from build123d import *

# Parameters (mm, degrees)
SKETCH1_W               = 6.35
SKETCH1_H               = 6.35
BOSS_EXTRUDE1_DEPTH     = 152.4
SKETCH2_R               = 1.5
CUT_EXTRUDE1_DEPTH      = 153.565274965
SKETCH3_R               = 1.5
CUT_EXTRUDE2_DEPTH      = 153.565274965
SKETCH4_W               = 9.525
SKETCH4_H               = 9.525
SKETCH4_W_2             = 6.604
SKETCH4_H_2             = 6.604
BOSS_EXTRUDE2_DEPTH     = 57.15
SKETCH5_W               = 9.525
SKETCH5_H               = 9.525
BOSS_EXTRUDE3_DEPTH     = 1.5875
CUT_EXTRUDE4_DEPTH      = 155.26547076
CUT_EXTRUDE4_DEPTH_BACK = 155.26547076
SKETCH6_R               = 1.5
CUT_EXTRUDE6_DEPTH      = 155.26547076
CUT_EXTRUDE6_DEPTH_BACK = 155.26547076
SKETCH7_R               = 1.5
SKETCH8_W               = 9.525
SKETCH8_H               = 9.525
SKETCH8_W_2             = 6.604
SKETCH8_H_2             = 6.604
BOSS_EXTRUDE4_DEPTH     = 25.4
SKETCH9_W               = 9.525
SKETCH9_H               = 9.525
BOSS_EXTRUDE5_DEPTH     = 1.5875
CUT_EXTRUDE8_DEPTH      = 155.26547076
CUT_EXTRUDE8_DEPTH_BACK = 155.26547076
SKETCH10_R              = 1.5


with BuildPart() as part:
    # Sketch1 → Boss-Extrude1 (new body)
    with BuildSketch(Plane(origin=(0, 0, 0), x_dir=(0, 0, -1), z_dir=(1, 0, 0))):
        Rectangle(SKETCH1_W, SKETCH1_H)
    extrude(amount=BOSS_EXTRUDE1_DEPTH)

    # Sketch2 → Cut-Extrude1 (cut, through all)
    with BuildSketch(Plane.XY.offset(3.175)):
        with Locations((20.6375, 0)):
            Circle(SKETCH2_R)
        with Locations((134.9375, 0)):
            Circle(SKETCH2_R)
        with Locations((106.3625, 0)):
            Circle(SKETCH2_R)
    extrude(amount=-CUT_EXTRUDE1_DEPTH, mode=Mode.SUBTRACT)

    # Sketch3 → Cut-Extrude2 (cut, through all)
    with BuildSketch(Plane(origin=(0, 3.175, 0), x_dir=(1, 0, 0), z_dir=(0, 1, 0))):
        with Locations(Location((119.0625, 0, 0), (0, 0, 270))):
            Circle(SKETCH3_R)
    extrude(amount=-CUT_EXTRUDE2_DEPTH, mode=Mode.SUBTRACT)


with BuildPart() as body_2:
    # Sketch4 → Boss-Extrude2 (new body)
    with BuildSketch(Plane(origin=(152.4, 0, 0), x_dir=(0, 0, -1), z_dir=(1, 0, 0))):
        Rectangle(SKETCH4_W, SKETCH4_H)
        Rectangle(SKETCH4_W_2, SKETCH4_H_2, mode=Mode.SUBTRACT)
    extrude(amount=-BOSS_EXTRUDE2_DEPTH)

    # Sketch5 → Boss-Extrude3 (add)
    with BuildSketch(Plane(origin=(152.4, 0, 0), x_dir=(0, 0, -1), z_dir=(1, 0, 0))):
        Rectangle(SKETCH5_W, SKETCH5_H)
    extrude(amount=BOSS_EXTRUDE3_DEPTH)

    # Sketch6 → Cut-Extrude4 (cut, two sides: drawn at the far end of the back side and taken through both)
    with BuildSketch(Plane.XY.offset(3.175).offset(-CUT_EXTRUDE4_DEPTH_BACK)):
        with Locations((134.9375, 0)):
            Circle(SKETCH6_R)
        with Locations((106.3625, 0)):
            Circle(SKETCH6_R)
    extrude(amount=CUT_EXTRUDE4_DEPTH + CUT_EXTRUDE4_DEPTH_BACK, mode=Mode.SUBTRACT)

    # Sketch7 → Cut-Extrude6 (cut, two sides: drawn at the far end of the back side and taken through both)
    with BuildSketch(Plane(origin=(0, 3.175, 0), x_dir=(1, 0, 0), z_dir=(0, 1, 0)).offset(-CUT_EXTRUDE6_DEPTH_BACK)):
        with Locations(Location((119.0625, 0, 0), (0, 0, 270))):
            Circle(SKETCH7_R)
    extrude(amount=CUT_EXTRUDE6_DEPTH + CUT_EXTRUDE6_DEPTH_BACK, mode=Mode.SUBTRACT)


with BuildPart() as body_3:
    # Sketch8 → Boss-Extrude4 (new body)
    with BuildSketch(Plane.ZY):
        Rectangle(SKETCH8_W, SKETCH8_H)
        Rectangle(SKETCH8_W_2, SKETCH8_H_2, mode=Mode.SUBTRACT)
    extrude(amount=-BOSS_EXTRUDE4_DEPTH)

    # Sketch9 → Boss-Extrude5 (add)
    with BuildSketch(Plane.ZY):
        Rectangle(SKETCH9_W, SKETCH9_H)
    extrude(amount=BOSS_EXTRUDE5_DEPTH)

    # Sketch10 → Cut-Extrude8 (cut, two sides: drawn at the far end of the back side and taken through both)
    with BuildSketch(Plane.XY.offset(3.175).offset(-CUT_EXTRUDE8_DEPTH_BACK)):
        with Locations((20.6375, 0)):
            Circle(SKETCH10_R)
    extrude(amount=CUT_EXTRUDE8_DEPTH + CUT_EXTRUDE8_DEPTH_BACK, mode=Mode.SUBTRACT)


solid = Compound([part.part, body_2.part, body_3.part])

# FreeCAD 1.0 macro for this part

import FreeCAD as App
import Part
import Sketcher
from FreeCAD import Vector
Q = App.Units.Quantity


def add_polygon(sketch, points):
    """Adds a closed chain of lines whose ends are joined by coincident constraints."""
    first, n = sketch.GeometryCount, len(points)
    for a, b in zip(points, points[1:] + points[:1]):
        sketch.addGeometry(Part.LineSegment(App.Vector(*a, 0), App.Vector(*b, 0)), False)
    for i in range(n):
        sketch.addConstraint(Sketcher.Constraint("Coincident", first + i, 2, first + (i + 1) % n, 1))

doc = App.newDocument("Part")
body = doc.addObject("PartDesign::Body", "Body")

# Sketch on YZ plane
sketch1 = body.newObject("Sketcher::SketchObject", "Sketch")
sketch1.AttachmentSupport = (doc.getObject("YZ_Plane"), [""])
sketch1.MapMode = "FlatFace"
add_polygon(sketch1, [(3, 3), (-3, 3), (-3, -3), (3, -3)])  # lines 0-3
sketch1.addConstraint([
    Sketcher.Constraint("Horizontal", 0),
    Sketcher.Constraint("Vertical", 1),
    Sketcher.Constraint("Horizontal", 2),
    Sketcher.Constraint("Vertical", 3),
    Sketcher.Constraint("Symmetric", 0, 2, 2, 2, -1, 1),
    Sketcher.Constraint("Equal", 2, 1),
    Sketcher.Constraint("DistanceX", 0, 2, 0, 1, Q("0.25 in")),
])
pad1 = body.newObject("PartDesign::Pad", "Pad")
pad1.Profile = sketch1
pad1.Length = Q("6 in")

# Sketch on XY plane
sketch2 = body.newObject("Sketcher::SketchObject", "Sketch001")
sketch2.AttachmentSupport = (doc.getObject("XY_Plane"), [""])
sketch2.MapMode = "FlatFace"
sketch2.AttachmentOffset = App.Placement(Vector(0, 0, 0.125 * 25.4), App.Rotation())
sketch2.addGeometry([
    Part.Circle(Vector(20.6, 0, 0), Vector(0, 0, 1), 1.5),
    Part.Circle(Vector(134.9, 0, 0), Vector(0, 0, 1), 1.5),
    Part.Circle(Vector(106.4, 0, 0), Vector(0, 0, 1), 1.5),
], False)
sketch2.addConstraint([
    Sketcher.Constraint("Equal", 0, 1),
    Sketcher.Constraint("Equal", 1, 2),
    Sketcher.Constraint("PointOnObject", 0, 3, -1),
    Sketcher.Constraint("PointOnObject", 1, 3, -1),
    Sketcher.Constraint("PointOnObject", 2, 3, -1),
    Sketcher.Constraint("DistanceX", 0, 3, 1, 3, Q("4.5 in")),
    Sketcher.Constraint("Diameter", 0, 3.0),
    Sketcher.Constraint("DistanceX", -1, 1, 0, 3, Q("0.8125 in")),
    Sketcher.Constraint("DistanceX", -1, 1, 2, 3, Q("4.1875 in")),
])
pocket1 = body.newObject("PartDesign::Pocket", "Pocket")
pocket1.Profile = sketch2
pocket1.Type = "ThroughAll"

# Sketch on XZ plane
sketch3 = body.newObject("Sketcher::SketchObject", "Sketch002")
sketch3.AttachmentSupport = (doc.getObject("XZ_Plane"), [""])
sketch3.MapMode = "FlatFace"
sketch3.AttachmentOffset = App.Placement(Vector(0, 0, -0.125 * 25.4), App.Rotation())
sketch3.addGeometry(Part.Circle(Vector(119.1, 0, 0), Vector(0, 0, 1), 1.5), False)
sketch3.addConstraint([
    Sketcher.Constraint("PointOnObject", 0, 3, -1),
    Sketcher.Constraint("Diameter", 0, 3.0),
    Sketcher.Constraint("DistanceX", -1, 1, 0, 3, Q("4.6875 in")),
])
pocket2 = body.newObject("PartDesign::Pocket", "Pocket001")
pocket2.Profile = sketch3
pocket2.Type = "ThroughAll"
pocket2.Reversed = True
body2 = doc.addObject("PartDesign::Body", "Body001")

# Sketch on YZ plane
sketch4 = body2.newObject("Sketcher::SketchObject", "Sketch003")
sketch4.AttachmentSupport = (doc.getObject("YZ_Plane001"), [""])
sketch4.MapMode = "FlatFace"
sketch4.AttachmentOffset = App.Placement(Vector(0, 0, 6 * 25.4), App.Rotation())
add_polygon(sketch4, [(5, 5), (-5, 5), (-5, -5), (5, -5)])  # lines 0-3
add_polygon(sketch4, [(-3, -3), (-3, 3), (3, 3), (3, -3)])  # lines 4-7
sketch4.addConstraint([
    Sketcher.Constraint("Horizontal", 0),
    Sketcher.Constraint("Vertical", 1),
    Sketcher.Constraint("Horizontal", 2),
    Sketcher.Constraint("Vertical", 3),
    Sketcher.Constraint("Vertical", 4),
    Sketcher.Constraint("Horizontal", 5),
    Sketcher.Constraint("Vertical", 6),
    Sketcher.Constraint("Horizontal", 7),
    Sketcher.Constraint("Symmetric", 0, 2, 2, 2, -1, 1),
    Sketcher.Constraint("Symmetric", 4, 2, 6, 2, -1, 1),
    Sketcher.Constraint("Equal", 2, 1),
    Sketcher.Constraint("Equal", 7, 4),
    Sketcher.Constraint("DistanceX", 5, 1, 5, 2, Q("0.26 in")),
    Sketcher.Constraint("DistanceX", 0, 2, 0, 1, Q("0.375 in")),
])
pad2 = body2.newObject("PartDesign::Pad", "Pad001")
pad2.Profile = sketch4
pad2.Length = Q("2.25 in")
pad2.Reversed = True

# Sketch on YZ plane
sketch5 = body2.newObject("Sketcher::SketchObject", "Sketch004")
sketch5.AttachmentSupport = (doc.getObject("YZ_Plane001"), [""])
sketch5.MapMode = "FlatFace"
sketch5.AttachmentOffset = App.Placement(Vector(0, 0, 6 * 25.4), App.Rotation())
add_polygon(sketch5, [(5, 5), (-5, 5), (-5, -5), (5, -5)])  # lines 0-3
sketch5.addConstraint([
    Sketcher.Constraint("Horizontal", 0),
    Sketcher.Constraint("Vertical", 1),
    Sketcher.Constraint("Horizontal", 2),
    Sketcher.Constraint("Vertical", 3),
    Sketcher.Constraint("Symmetric", 0, 2, 2, 2, -1, 1),
    Sketcher.Constraint("Equal", 2, 1),
    Sketcher.Constraint("DistanceX", 0, 2, 0, 1, Q("0.375 in")),
])
pad3 = body2.newObject("PartDesign::Pad", "Pad002")
pad3.Profile = sketch5
pad3.Length = Q("0.0625 in")

# Sketch on XY plane
sketch6 = body2.newObject("Sketcher::SketchObject", "Sketch005")
sketch6.AttachmentSupport = (doc.getObject("XY_Plane001"), [""])
sketch6.MapMode = "FlatFace"
sketch6.AttachmentOffset = App.Placement(Vector(0, 0, 0.125 * 25.4), App.Rotation())
sketch6.addGeometry([
    Part.Circle(Vector(134.9, 0, 0), Vector(0, 0, 1), 1.5),
    Part.Circle(Vector(106.4, 0, 0), Vector(0, 0, 1), 1.5),
], False)
sketch6.addConstraint([
    Sketcher.Constraint("Equal", 0, 1),
    Sketcher.Constraint("PointOnObject", 0, 3, -1),
    Sketcher.Constraint("PointOnObject", 1, 3, -1),
    Sketcher.Constraint("Diameter", 0, 3.0),
    Sketcher.Constraint("DistanceX", -1, 1, 0, 3, Q("5.3125 in")),
    Sketcher.Constraint("DistanceX", -1, 1, 1, 3, Q("4.1875 in")),
])
pocket3 = body2.newObject("PartDesign::Pocket", "Pocket002")
pocket3.Profile = sketch6
pocket3.Type = "ThroughAll"
pocket3.Midplane = True

# Sketch on XZ plane
sketch7 = body2.newObject("Sketcher::SketchObject", "Sketch006")
sketch7.AttachmentSupport = (doc.getObject("XZ_Plane001"), [""])
sketch7.MapMode = "FlatFace"
sketch7.AttachmentOffset = App.Placement(Vector(0, 0, -0.125 * 25.4), App.Rotation())
sketch7.addGeometry(Part.Circle(Vector(119.1, 0, 0), Vector(0, 0, 1), 1.5), False)
sketch7.addConstraint([
    Sketcher.Constraint("PointOnObject", 0, 3, -1),
    Sketcher.Constraint("Diameter", 0, 3.0),
    Sketcher.Constraint("DistanceX", -1, 1, 0, 3, Q("4.6875 in")),
])
pocket4 = body2.newObject("PartDesign::Pocket", "Pocket003")
pocket4.Profile = sketch7
pocket4.Type = "ThroughAll"
pocket4.Midplane = True
body3 = doc.addObject("PartDesign::Body", "Body002")

# Sketch on YZ plane
sketch8 = body3.newObject("Sketcher::SketchObject", "Sketch007")
sketch8.AttachmentSupport = (doc.getObject("YZ_Plane002"), [""])
sketch8.MapMode = "FlatFace"
add_polygon(sketch8, [(5, -5), (-5, -5), (-5, 5), (5, 5)])  # lines 0-3
add_polygon(sketch8, [(-3, 3), (-3, -3), (3, -3), (3, 3)])  # lines 4-7
sketch8.addConstraint([
    Sketcher.Constraint("Horizontal", 0),
    Sketcher.Constraint("Vertical", 1),
    Sketcher.Constraint("Horizontal", 2),
    Sketcher.Constraint("Vertical", 3),
    Sketcher.Constraint("Vertical", 4),
    Sketcher.Constraint("Horizontal", 5),
    Sketcher.Constraint("Vertical", 6),
    Sketcher.Constraint("Horizontal", 7),
    Sketcher.Constraint("Symmetric", 0, 2, 2, 2, -1, 1),
    Sketcher.Constraint("Symmetric", 4, 2, 6, 2, -1, 1),
    Sketcher.Constraint("Equal", 2, 1),
    Sketcher.Constraint("Equal", 7, 4),
    Sketcher.Constraint("DistanceX", 5, 1, 5, 2, Q("0.26 in")),
    Sketcher.Constraint("DistanceX", 0, 2, 0, 1, Q("0.375 in")),
])
pad4 = body3.newObject("PartDesign::Pad", "Pad003")
pad4.Profile = sketch8
pad4.Length = Q("1 in")

# Sketch on YZ plane
sketch9 = body3.newObject("Sketcher::SketchObject", "Sketch008")
sketch9.AttachmentSupport = (doc.getObject("YZ_Plane002"), [""])
sketch9.MapMode = "FlatFace"
add_polygon(sketch9, [(5, -5), (-5, -5), (-5, 5), (5, 5)])  # lines 0-3
sketch9.addConstraint([
    Sketcher.Constraint("Horizontal", 0),
    Sketcher.Constraint("Vertical", 1),
    Sketcher.Constraint("Horizontal", 2),
    Sketcher.Constraint("Vertical", 3),
    Sketcher.Constraint("Symmetric", 0, 2, 2, 2, -1, 1),
    Sketcher.Constraint("Equal", 2, 1),
    Sketcher.Constraint("DistanceX", 0, 2, 0, 1, Q("0.375 in")),
])
pad5 = body3.newObject("PartDesign::Pad", "Pad004")
pad5.Profile = sketch9
pad5.Length = Q("0.0625 in")
pad5.Reversed = True

# Sketch on XY plane
sketch10 = body3.newObject("Sketcher::SketchObject", "Sketch009")
sketch10.AttachmentSupport = (doc.getObject("XY_Plane002"), [""])
sketch10.MapMode = "FlatFace"
sketch10.AttachmentOffset = App.Placement(Vector(0, 0, 0.125 * 25.4), App.Rotation())
sketch10.addGeometry(Part.Circle(Vector(20.6, 0, 0), Vector(0, 0, 1), 1.5), False)
sketch10.addConstraint([
    Sketcher.Constraint("PointOnObject", 0, 3, -1),
    Sketcher.Constraint("Diameter", 0, 3.0),
    Sketcher.Constraint("DistanceX", -1, 1, 0, 3, Q("0.8125 in")),
])
pocket5 = body3.newObject("PartDesign::Pocket", "Pocket004")
pocket5.Profile = sketch10
pocket5.Type = "ThroughAll"
pocket5.Midplane = True

doc.recompute()
